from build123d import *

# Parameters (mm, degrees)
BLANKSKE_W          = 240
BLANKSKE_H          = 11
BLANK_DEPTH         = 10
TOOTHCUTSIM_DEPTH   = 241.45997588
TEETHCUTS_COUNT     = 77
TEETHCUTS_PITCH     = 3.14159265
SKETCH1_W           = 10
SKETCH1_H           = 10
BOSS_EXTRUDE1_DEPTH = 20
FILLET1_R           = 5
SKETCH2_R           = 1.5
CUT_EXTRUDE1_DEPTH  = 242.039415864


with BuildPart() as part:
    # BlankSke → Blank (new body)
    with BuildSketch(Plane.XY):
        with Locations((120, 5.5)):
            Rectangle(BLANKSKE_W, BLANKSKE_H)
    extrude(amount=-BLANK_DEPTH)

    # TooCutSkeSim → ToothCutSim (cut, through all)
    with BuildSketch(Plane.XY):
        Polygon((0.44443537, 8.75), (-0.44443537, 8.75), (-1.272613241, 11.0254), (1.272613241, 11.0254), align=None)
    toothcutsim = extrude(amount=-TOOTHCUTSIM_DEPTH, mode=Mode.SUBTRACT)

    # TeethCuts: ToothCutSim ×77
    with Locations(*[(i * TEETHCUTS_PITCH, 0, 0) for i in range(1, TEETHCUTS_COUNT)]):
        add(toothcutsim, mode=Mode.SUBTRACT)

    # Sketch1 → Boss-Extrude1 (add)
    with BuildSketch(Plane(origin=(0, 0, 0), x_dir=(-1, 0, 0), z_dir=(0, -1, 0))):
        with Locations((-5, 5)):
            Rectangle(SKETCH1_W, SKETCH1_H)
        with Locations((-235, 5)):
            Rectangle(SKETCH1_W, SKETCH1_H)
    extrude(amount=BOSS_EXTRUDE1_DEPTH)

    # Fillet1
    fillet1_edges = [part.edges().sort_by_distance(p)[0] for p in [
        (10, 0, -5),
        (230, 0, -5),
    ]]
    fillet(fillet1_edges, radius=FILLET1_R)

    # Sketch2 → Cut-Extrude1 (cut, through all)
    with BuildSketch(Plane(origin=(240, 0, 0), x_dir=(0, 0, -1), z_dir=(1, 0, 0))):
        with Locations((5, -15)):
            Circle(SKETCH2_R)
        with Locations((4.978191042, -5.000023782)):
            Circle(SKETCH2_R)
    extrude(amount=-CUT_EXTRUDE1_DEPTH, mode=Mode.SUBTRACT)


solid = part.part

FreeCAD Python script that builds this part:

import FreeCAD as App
import Part
import Sketcher

V = App.Vector
Q = App.Units.Quantity


def edges_at(feature, points):
    """Names of the edges that pass closest to the given points."""
    edges = feature.Shape.Edges
    near = lambda p: min(range(len(edges)), key=lambda i: edges[i].distToShape(Part.Vertex(*p))[0])
    return sorted({f"Edge{near(p) + 1}" for p in points})

doc = App.newDocument("Part")
body = doc.addObject("PartDesign::Body", "Body")

# Sketch on XY plane
sketch1 = body.newObject("Sketcher::SketchObject", "Sketch")
sketch1.AttachmentSupport = (doc.getObject("XY_Plane"), [""])
sketch1.MapMode = "FlatFace"
sketch1.addGeometry([
    Part.LineSegment(V(0, 11, 0), V(0, 0, 0)),
    Part.LineSegment(V(0, 0, 0), V(240, 0, 0)),
    Part.LineSegment(V(240, 0, 0), V(240, 11, 0)),
    Part.LineSegment(V(240, 11, 0), V(0, 11, 0)),
], False)
sketch1.addConstraint([
    Sketcher.Constraint("Coincident", 0, 2, 1, 1),
    Sketcher.Constraint("Coincident", 1, 2, 2, 1),
    Sketcher.Constraint("Coincident", 2, 2, 3, 1),
    Sketcher.Constraint("Coincident", 3, 2, 0, 1),
    Sketcher.Constraint("Vertical", 0),
    Sketcher.Constraint("Horizontal", 1),
    Sketcher.Constraint("Vertical", 2),
    Sketcher.Constraint("Horizontal", 3),
    Sketcher.Constraint("Coincident", 0, 2, -1, 1),
    Sketcher.Constraint("DistanceX", 1, 1, 1, 2, Q("240 mm")),
    Sketcher.Constraint("DistanceY", 0, 2, 0, 1, Q("11 mm")),
])
pad1 = body.newObject("PartDesign::Pad", "Pad")
pad1.Profile = sketch1
pad1.Length = 10
pad1.Reversed = True

# Sketch on XY plane
sketch2 = body.newObject("Sketcher::SketchObject", "Sketch001")
sketch2.AttachmentSupport = (doc.getObject("XY_Plane"), [""])
sketch2.MapMode = "FlatFace"
sketch2.addGeometry([
    Part.LineSegment(V(-0.444435, 8.75, 0), V(0.444435, 8.75, 0)),
    Part.LineSegment(V(0.444435, 8.75, 0), V(1.272613, 11.0254, 0)),
    Part.LineSegment(V(1.272613, 11.0254, 0), V(-1.272613, 11.0254, 0)),
    Part.LineSegment(V(-1.272613, 11.0254, 0), V(-0.444435, 8.75, 0)),
], False)
sketch2.addConstraint([
    Sketcher.Constraint("Coincident", 0, 2, 1, 1),
    Sketcher.Constraint("Coincident", 1, 2, 2, 1),
    Sketcher.Constraint("Coincident", 2, 2, 3, 1),
    Sketcher.Constraint("Coincident", 3, 2, 0, 1),
    Sketcher.Constraint("Horizontal", 0),
    Sketcher.Constraint("Horizontal", 2),
    Sketcher.Constraint("Equal", 1, 3),
    Sketcher.Constraint("Angle", 1, Q("70 deg")),
    Sketcher.Constraint("DistanceY", -1, 1, 0, 2, Q("8.75 mm")),
    Sketcher.Constraint("DistanceX", 0, 1, 0, 2, Q("0.888871 mm")),
    Sketcher.Constraint("DistanceY", -1, 1, 1, 2, Q("11.0254 mm")),
    Sketcher.Constraint("DistanceX", -1, 1, 0, 2, Q("0.444435 mm")),
])
pocket1 = body.newObject("PartDesign::Pocket", "Pocket")
pocket1.Profile = sketch2
pocket1.Type = "ThroughAll"
doc.recompute()

linearpattern = body.newObject("PartDesign::LinearPattern", "LinearPattern")
linearpattern.Originals = [pocket1]
linearpattern.Direction = (doc.getObject("X_Axis"), [""])
linearpattern.Mode = "offset"
linearpattern.Offset = 3.141593
linearpattern.Occurrences = 77
body.Tip = linearpattern

# Sketch on XZ plane
sketch3 = body.newObject("Sketcher::SketchObject", "Sketch002")
sketch3.AttachmentSupport = (doc.getObject("XZ_Plane"), [""])
sketch3.MapMode = "FlatFace"
sketch3.addGeometry([
    Part.LineSegment(V(10, -10, 0), V(10, 0, 0)),  # 0
    Part.LineSegment(V(10, 0, 0), V(0, 0, 0)),  # 1
    Part.LineSegment(V(0, 0, 0), V(0, -10, 0)),  # 2
    Part.LineSegment(V(0, -10, 0), V(10, -10, 0)),  # 3
    Part.LineSegment(V(240, -10, 0), V(240, 0, 0)),  # 4
    Part.LineSegment(V(240, 0, 0), V(230, 0, 0)),  # 5
    Part.LineSegment(V(230, 0, 0), V(230, -10, 0)),  # 6
    Part.LineSegment(V(230, -10, 0), V(240, -10, 0)),  # 7
], False)
sketch3.addConstraint([
    Sketcher.Constraint("Coincident", 0, 2, 1, 1),
    Sketcher.Constraint("Coincident", 1, 2, 2, 1),
    Sketcher.Constraint("Coincident", 2, 2, 3, 1),
    Sketcher.Constraint("Coincident", 3, 2, 0, 1),
    Sketcher.Constraint("Coincident", 4, 2, 5, 1),
    Sketcher.Constraint("Coincident", 5, 2, 6, 1),
    Sketcher.Constraint("Coincident", 6, 2, 7, 1),
    Sketcher.Constraint("Coincident", 7, 2, 4, 1),
    Sketcher.Constraint("Vertical", 0),
    Sketcher.Constraint("Horizontal", 1),
    Sketcher.Constraint("Vertical", 2),
    Sketcher.Constraint("Horizontal", 3),
    Sketcher.Constraint("Vertical", 4),
    Sketcher.Constraint("Horizontal", 5),
    Sketcher.Constraint("Vertical", 6),
    Sketcher.Constraint("Horizontal", 7),
    Sketcher.Constraint("Coincident", 1, 2, -1, 1),
    Sketcher.Constraint("PointOnObject", 4, 2, -1),
    Sketcher.Constraint("Horizontal", 3, 2, 6, 2),
    Sketcher.Constraint("Equal", 3, 5),
    Sketcher.Constraint("Equal", 7, 0),
    Sketcher.Constraint("DistanceX", 1, 2, 1, 1, Q("10 mm")),
    Sketcher.Constraint("DistanceX", -1, 1, 4, 2, Q("240 mm")),
])
pad2 = body.newObject("PartDesign::Pad", "Pad001")
pad2.Profile = sketch3
pad2.Length = 20
doc.recompute()

fillet = body.newObject("PartDesign::Fillet", "Fillet")
fillet.Base = (pad2, edges_at(pad2, [(10, 0, -5), (230, 0, -5)]))
fillet.Radius = 5

# Sketch on YZ plane
sketch4 = body.newObject("Sketcher::SketchObject", "Sketch003")
sketch4.AttachmentSupport = (doc.getObject("YZ_Plane"), [""])
sketch4.MapMode = "FlatFace"
sketch4.AttachmentOffset = App.Placement(V(0, 0, 240), App.Rotation())
sketch4.addGeometry([
    Part.Circle(V(-15, -5, 0), V(0, 0, 1), 1.5),
    Part.Circle(V(-5.000024, -4.978191, 0), V(0, 0, 1), 1.5),
], False)
sketch4.addConstraint([
    Sketcher.Constraint("Equal", 0, 1),
    Sketcher.Constraint("Diameter", 0, Q("3 mm")),
    Sketcher.Constraint("DistanceX", 0, 3, -1, 1, Q("15 mm")),
    Sketcher.Constraint("DistanceY", 0, 3, -1, 1, Q("5 mm")),
    Sketcher.Constraint("DistanceY", 1, 3, -1, 1, Q("4.978191 mm")),
    Sketcher.Constraint("DistanceX", 1, 3, -1, 1, Q("5.000024 mm")),
])
pocket2 = body.newObject("PartDesign::Pocket", "Pocket001")
pocket2.Profile = sketch4
pocket2.Type = "ThroughAll"

doc.recompute()
